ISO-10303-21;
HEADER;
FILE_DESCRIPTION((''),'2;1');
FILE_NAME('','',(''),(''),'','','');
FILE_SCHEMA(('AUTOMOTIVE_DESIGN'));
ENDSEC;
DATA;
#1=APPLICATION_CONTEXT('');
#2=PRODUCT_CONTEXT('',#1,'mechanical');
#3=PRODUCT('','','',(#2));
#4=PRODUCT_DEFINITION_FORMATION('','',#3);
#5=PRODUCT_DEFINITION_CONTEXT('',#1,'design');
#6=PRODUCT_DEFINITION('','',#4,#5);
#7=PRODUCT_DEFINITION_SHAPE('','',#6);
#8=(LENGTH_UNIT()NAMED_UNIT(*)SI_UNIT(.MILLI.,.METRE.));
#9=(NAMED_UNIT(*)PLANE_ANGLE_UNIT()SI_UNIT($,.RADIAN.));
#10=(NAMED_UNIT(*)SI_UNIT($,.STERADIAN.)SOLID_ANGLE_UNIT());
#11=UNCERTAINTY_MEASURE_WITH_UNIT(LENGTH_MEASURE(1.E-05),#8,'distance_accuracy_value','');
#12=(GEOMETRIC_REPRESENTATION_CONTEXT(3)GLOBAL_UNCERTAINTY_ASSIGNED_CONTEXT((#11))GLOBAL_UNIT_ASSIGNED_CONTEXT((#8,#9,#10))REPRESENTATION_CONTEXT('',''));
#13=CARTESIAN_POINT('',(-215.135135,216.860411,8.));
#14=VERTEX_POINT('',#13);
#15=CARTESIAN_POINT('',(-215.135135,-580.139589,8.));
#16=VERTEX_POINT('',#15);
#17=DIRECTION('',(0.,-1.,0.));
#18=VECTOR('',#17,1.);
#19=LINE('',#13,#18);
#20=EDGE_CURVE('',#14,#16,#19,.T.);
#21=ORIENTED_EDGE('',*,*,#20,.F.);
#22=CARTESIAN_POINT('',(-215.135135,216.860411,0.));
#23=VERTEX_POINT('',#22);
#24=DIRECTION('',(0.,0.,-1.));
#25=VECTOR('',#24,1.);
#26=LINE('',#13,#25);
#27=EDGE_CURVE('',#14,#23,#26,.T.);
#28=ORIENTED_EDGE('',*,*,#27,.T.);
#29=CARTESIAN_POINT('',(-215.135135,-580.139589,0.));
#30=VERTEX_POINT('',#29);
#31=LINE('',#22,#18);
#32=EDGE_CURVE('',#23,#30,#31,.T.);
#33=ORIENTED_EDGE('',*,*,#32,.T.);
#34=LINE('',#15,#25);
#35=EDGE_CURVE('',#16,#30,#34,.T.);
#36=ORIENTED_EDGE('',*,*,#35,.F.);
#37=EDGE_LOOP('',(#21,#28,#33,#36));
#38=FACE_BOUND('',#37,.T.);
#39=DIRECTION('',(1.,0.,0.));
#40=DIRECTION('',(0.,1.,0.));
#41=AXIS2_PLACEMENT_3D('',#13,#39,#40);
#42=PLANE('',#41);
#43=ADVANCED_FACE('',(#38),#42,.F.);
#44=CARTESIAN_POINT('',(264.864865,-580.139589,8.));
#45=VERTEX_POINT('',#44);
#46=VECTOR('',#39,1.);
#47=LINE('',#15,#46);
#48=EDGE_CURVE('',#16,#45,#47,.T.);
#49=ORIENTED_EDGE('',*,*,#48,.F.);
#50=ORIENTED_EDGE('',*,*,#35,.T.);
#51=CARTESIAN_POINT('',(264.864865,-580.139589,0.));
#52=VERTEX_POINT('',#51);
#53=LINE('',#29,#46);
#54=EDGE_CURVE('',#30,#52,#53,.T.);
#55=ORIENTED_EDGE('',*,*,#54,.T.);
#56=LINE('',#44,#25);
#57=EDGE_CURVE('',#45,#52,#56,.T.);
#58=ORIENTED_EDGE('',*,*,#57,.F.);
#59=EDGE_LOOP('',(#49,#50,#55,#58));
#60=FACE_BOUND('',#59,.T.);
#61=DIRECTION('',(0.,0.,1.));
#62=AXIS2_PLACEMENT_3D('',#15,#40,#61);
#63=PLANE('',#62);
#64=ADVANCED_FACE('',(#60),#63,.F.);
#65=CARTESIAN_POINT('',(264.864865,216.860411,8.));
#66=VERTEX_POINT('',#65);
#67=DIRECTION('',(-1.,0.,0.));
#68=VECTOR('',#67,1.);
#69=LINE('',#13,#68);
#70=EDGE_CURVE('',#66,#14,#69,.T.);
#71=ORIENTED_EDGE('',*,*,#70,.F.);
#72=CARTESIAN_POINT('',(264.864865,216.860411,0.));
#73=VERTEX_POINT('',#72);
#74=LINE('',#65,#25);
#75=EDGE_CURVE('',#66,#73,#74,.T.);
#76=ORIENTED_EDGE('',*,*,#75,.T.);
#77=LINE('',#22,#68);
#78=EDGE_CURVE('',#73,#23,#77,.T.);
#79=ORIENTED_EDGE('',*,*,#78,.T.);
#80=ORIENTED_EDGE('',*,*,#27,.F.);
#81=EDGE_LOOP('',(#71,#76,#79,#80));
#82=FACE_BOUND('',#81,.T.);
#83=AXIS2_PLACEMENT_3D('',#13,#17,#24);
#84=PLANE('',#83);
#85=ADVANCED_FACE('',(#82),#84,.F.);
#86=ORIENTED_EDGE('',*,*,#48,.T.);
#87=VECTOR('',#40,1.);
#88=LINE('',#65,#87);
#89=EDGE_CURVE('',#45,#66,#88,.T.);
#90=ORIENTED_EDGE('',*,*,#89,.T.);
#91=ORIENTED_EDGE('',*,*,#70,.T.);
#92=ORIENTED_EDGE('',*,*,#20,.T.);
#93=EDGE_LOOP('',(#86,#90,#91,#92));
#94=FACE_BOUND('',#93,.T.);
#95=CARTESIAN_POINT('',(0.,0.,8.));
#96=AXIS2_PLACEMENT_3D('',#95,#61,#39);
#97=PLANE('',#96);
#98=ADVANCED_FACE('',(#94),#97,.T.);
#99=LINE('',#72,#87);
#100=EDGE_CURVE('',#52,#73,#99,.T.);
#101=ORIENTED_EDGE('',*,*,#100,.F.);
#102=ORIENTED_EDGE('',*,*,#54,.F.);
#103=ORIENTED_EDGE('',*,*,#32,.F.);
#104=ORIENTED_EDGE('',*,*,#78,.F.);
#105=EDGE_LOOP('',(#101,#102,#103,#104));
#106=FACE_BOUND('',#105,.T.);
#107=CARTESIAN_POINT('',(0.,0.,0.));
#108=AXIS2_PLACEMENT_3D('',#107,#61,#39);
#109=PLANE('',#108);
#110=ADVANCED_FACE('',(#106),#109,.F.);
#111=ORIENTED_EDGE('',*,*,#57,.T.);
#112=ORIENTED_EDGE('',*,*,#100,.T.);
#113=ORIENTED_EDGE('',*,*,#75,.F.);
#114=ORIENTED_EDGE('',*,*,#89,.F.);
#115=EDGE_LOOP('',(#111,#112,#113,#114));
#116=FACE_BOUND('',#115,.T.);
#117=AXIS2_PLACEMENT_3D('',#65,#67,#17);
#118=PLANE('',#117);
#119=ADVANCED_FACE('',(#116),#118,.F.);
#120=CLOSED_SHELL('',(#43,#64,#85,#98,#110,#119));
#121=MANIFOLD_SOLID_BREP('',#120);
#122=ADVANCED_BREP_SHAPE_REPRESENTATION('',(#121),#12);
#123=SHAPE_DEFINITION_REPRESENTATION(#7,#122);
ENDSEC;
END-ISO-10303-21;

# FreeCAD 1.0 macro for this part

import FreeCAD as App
import Part
import Sketcher
from FreeCAD import Vector


def add_polygon(sketch, points):
    """Adds a closed chain of lines whose ends are joined by coincident constraints."""
    first, n = sketch.GeometryCount, len(points)
    for a, b in zip(points, points[1:] + points[:1]):
        sketch.addGeometry(Part.LineSegment(App.Vector(*a, 0), App.Vector(*b, 0)), False)
    for i in range(n):
        sketch.addConstraint(Sketcher.Constraint("Coincident", first + i, 2, first + (i + 1) % n, 1))

doc = App.newDocument("Part")
body = doc.addObject("PartDesign::Body", "Body")

# Sketch on XY plane
sketch1 = doc.addObject("Sketcher::SketchObject", "Sketch")
body.addObject(sketch1)
sketch1.AttachmentSupport = (doc.XY_Plane, [""])
sketch1.MapMode = "FlatFace"
add_polygon(sketch1, [(-215, 217), (-215, -580), (265, -580), (265, 217)])  # lines 0-3
sketch1.addConstraint([
    Sketcher.Constraint("Vertical", 0),
    Sketcher.Constraint("Horizontal", 1),
    Sketcher.Constraint("Vertical", 2),
    Sketcher.Constraint("Horizontal", 3),
    Sketcher.Constraint("DistanceX", 1, 1, 1, 2, 480.0),
    Sketcher.Constraint("DistanceY", 0, 2, 0, 1, 797.0),
    Sketcher.Constraint("DistanceY", 0, 2, -1, 1, 580.139589),
    Sketcher.Constraint("DistanceX", 0, 2, -1, 1, 215.135135),
])
pad1 = doc.addObject("PartDesign::Pad", "Pad")
body.addObject(pad1)
pad1.Profile = sketch1
pad1.Length = 8

doc.recompute()
